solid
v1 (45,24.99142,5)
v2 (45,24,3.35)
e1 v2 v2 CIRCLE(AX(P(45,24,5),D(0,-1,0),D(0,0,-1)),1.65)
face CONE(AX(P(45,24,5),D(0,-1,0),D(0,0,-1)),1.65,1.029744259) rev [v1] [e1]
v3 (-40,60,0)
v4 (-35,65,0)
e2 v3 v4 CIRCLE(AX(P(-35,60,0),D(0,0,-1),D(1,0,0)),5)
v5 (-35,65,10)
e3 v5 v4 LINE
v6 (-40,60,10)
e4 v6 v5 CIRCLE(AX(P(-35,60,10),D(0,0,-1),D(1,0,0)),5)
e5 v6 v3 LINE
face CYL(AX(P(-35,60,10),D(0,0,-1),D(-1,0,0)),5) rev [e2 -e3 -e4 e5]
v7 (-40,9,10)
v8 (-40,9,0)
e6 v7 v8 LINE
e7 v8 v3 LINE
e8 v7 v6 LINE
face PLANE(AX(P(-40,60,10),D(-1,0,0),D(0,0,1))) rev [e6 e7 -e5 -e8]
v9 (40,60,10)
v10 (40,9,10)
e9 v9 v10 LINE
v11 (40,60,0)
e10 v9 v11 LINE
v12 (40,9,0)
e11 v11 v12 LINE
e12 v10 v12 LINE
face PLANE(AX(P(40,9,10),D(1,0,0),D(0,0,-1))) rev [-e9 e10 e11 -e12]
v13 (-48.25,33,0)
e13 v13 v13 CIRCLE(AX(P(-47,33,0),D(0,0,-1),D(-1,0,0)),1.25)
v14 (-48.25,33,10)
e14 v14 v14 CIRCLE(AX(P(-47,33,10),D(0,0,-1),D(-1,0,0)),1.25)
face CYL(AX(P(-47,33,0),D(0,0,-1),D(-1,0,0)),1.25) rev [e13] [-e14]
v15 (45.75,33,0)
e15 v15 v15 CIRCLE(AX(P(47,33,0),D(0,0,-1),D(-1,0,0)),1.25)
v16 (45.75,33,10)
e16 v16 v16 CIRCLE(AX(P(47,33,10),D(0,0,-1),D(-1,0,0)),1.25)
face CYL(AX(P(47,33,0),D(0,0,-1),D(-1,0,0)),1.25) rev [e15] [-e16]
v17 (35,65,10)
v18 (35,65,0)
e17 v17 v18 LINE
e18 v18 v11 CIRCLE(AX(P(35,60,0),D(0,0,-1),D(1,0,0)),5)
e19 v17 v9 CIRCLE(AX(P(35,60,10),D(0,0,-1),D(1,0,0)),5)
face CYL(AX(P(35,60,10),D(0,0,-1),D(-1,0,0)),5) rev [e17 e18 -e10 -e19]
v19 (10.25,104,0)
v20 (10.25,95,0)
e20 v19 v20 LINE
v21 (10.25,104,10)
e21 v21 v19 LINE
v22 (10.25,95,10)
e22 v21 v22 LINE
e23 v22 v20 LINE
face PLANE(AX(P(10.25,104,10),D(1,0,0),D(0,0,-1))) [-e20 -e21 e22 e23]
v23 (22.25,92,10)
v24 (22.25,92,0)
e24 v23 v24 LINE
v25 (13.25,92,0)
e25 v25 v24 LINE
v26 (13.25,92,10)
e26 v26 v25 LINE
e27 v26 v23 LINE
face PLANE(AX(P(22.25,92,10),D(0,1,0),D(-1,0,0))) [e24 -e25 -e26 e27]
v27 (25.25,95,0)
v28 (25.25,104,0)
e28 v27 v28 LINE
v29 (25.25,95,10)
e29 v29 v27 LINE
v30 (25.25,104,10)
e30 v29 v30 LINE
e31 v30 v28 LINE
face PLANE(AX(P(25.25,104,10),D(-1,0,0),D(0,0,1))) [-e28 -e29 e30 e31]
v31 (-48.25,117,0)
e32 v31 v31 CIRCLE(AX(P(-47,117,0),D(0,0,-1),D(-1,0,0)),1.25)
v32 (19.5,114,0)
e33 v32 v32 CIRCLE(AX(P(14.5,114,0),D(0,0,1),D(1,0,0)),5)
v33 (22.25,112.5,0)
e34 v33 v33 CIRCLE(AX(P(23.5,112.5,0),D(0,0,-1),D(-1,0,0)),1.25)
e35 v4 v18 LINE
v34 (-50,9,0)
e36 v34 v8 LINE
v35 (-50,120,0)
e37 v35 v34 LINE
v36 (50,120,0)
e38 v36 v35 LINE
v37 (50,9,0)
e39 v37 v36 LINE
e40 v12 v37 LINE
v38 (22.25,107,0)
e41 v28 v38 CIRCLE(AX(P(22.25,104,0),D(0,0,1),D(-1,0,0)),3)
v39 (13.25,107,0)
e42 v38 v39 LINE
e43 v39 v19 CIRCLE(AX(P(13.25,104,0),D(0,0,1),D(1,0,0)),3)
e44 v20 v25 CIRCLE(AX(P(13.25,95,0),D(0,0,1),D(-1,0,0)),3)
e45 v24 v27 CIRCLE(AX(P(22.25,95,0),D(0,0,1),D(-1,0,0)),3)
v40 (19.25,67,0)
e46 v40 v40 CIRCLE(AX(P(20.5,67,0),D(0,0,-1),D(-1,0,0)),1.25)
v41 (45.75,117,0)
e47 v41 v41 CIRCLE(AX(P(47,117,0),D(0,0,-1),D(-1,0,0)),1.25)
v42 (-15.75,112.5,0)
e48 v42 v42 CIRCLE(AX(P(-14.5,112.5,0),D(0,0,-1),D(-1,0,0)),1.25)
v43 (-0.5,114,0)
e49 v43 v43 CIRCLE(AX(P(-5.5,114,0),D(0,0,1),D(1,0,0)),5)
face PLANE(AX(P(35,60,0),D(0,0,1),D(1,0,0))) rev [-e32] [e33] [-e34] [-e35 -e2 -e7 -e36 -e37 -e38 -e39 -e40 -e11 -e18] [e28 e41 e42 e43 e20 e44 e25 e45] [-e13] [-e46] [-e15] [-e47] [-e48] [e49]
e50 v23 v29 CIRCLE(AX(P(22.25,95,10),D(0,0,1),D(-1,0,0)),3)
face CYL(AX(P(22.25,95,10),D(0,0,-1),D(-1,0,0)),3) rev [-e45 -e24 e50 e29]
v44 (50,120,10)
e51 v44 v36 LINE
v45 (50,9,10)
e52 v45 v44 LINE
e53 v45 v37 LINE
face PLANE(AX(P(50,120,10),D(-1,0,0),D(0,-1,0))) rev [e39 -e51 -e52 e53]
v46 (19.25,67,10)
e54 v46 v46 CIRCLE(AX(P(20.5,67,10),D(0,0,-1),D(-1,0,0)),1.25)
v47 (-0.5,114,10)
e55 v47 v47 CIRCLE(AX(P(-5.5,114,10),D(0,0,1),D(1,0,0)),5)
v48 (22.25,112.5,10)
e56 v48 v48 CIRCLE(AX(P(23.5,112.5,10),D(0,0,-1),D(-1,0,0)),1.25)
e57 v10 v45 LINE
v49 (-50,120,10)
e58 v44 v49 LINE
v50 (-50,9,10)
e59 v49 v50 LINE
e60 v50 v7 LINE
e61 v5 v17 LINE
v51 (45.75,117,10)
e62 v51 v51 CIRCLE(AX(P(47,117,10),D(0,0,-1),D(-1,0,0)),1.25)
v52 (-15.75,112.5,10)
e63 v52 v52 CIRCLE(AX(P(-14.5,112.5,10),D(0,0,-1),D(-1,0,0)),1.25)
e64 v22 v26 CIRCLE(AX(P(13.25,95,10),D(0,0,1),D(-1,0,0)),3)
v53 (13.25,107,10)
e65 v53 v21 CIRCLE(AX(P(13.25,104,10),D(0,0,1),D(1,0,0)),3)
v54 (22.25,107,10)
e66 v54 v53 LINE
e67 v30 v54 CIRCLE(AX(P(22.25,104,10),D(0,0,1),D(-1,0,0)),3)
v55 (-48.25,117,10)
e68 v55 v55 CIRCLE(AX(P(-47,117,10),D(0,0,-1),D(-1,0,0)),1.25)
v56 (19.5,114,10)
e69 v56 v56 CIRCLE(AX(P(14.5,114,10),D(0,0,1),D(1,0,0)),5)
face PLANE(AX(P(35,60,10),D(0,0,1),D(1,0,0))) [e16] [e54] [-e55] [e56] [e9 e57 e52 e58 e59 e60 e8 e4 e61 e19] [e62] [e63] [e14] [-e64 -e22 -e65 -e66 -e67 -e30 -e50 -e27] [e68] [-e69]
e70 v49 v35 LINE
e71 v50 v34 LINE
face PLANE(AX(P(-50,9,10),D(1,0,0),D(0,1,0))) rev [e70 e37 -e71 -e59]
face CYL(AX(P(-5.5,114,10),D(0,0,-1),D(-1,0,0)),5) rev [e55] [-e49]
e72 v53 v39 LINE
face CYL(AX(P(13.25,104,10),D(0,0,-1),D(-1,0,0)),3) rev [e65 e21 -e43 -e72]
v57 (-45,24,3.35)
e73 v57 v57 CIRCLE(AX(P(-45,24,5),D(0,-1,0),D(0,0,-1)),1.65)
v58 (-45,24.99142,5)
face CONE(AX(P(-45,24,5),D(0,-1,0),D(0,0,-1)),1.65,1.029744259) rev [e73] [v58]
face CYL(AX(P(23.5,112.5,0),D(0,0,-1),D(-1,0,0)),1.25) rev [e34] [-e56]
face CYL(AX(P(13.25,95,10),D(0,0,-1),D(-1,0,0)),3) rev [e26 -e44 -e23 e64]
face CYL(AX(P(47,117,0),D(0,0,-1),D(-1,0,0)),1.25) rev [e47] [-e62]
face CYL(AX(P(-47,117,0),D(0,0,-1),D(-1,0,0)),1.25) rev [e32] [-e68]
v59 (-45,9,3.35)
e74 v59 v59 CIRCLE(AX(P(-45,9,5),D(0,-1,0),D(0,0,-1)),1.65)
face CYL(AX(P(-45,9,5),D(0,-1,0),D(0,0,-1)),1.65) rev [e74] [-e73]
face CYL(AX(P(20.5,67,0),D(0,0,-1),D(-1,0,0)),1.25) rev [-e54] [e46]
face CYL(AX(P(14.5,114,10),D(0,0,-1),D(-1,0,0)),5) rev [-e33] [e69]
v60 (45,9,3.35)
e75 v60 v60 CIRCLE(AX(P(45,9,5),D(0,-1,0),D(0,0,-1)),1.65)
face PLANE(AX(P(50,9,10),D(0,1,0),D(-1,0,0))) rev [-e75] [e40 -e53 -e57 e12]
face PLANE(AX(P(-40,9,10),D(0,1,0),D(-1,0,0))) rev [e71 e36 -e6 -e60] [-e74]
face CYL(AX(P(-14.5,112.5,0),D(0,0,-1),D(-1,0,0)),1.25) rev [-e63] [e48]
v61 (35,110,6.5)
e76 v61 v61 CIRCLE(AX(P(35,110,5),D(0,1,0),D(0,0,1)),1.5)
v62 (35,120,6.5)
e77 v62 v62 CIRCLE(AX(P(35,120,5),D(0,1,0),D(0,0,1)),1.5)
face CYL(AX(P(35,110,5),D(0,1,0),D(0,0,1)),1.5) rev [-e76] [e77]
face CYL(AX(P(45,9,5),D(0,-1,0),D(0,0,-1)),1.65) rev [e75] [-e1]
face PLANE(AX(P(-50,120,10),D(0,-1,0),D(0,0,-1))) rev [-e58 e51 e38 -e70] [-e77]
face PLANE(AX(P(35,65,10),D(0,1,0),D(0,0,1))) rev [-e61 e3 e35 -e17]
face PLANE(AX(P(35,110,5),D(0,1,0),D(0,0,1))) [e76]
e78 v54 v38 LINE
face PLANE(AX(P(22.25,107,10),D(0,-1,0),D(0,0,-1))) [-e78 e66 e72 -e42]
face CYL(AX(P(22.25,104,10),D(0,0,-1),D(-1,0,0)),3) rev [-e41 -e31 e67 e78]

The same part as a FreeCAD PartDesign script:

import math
import FreeCAD as App
import Part
import Sketcher
from FreeCAD import Vector
Q = App.Units.Quantity

doc = App.newDocument("Part")
body = doc.addObject("PartDesign::Body", "Body")

sketch1 = body.newObject("Sketcher::SketchObject", "Sketch")
sketch1.AttachmentSupport = (doc.getObject("XY_Plane"), [""])
sketch1.MapMode = "FlatFace"
sketch1.addGeometry([
    Part.LineSegment(Vector(-50, 9, 0), Vector(-40, 9, 0)),
    Part.LineSegment(Vector(-40, 9, 0), Vector(-40, 60, 0)),
    Part.ArcOfCircle(Part.Circle(Vector(-35, 60, 0), Vector(0, 0, 1), 5), math.radians(90), math.radians(180)),
    Part.LineSegment(Vector(-35, 65, 0), Vector(35, 65, 0)),
    Part.ArcOfCircle(Part.Circle(Vector(35, 60, 0), Vector(0, 0, 1), 5), math.radians(0), math.radians(90)),
    Part.LineSegment(Vector(40, 60, 0), Vector(40, 9, 0)),
    Part.LineSegment(Vector(40, 9, 0), Vector(50, 9, 0)),
    Part.LineSegment(Vector(50, 9, 0), Vector(50, 120, 0)),
    Part.LineSegment(Vector(50, 120, 0), Vector(-50, 120, 0)),
    Part.LineSegment(Vector(-50, 120, 0), Vector(-50, 9, 0)),
], False)
sketch1.addConstraint([
    Sketcher.Constraint("Coincident", 0, 2, 1, 1),
    Sketcher.Constraint("Tangent", 1, 2, 2, 2),
    Sketcher.Constraint("Tangent", 2, 1, 3, 1),
    Sketcher.Constraint("Tangent", 3, 2, 4, 2),
    Sketcher.Constraint("Tangent", 4, 1, 5, 1),
    Sketcher.Constraint("Coincident", 5, 2, 6, 1),
    Sketcher.Constraint("Coincident", 6, 2, 7, 1),
    Sketcher.Constraint("Coincident", 7, 2, 8, 1),
    Sketcher.Constraint("Coincident", 8, 2, 9, 1),
    Sketcher.Constraint("Coincident", 9, 2, 0, 1),
    Sketcher.Constraint("Horizontal", 0),
    Sketcher.Constraint("Vertical", 1),
    Sketcher.Constraint("Horizontal", 3),
    Sketcher.Constraint("Vertical", 5),
    Sketcher.Constraint("Horizontal", 6),
    Sketcher.Constraint("Vertical", 7),
    Sketcher.Constraint("Horizontal", 8),
    Sketcher.Constraint("Vertical", 9),
    Sketcher.Constraint("Equal", 2, 4),
    Sketcher.Constraint("Symmetric", 0, 2, 5, 2, -2),
    Sketcher.Constraint("Equal", 0, 6),
    Sketcher.Constraint("Radius", 2, Q("5 mm")),
    Sketcher.Constraint("DistanceX", 0, 1, 0, 2, Q("10 mm")),
    Sketcher.Constraint("DistanceX", 3, 1, 3, 2, Q("70 mm")),
    Sketcher.Constraint("DistanceY", 1, 1, 1, 2, Q("51 mm")),
    Sketcher.Constraint("DistanceY", 7, 1, 7, 2, Q("111 mm")),
    Sketcher.Constraint("DistanceY", -1, 1, 2, 3, Q("60 mm")),
])
pad1 = body.newObject("PartDesign::Pad", "Pad")
pad1.Profile = sketch1
pad1.Length = 10

sketch2 = body.newObject("Sketcher::SketchObject", "Sketch001")
sketch2.AttachmentSupport = (doc.getObject("XZ_Plane"), [""])
sketch2.MapMode = "FlatFace"
sketch2.AttachmentOffset = App.Placement(Vector(0, 0, -9), App.Rotation())
sketch2.addGeometry([
    Part.Circle(Vector(-45, 5, 0), Vector(0, 0, 1), 1.6),
    Part.Circle(Vector(45, 5, 0), Vector(0, 0, 1), 1.6),
], False)
sketch2.addConstraint([
    Sketcher.Constraint("Equal", 0, 1),
    Sketcher.Constraint("Symmetric", 0, 3, 1, 3, -2),
    Sketcher.Constraint("Diameter", 0, Q("3.3 mm")),
    Sketcher.Constraint("DistanceX", 0, 3, -1, 1, Q("45 mm")),
    Sketcher.Constraint("DistanceY", -1, 1, 0, 3, Q("5 mm")),
])
doc.recompute()
hole = body.newObject("PartDesign::Hole", "Hole")
hole.Profile = sketch2
hole.ThreadType = "None"
hole.Diameter = 3.3
hole.DepthType = "Dimension"
hole.Depth = 15
hole.DrillPoint = "Angled"
hole.DrillPointAngle = 118

sketch3 = body.newObject("Sketcher::SketchObject", "Sketch002")
sketch3.AttachmentSupport = (doc.getObject("XY_Plane"), [""])
sketch3.MapMode = "FlatFace"
sketch3.addGeometry([
    Part.Circle(Vector(14.5, 114, 0), Vector(0, 0, 1), 5),
    Part.Circle(Vector(-5.5, 114, 0), Vector(0, 0, 1), 5),
    Part.LineSegment(Vector(22.2, 107, 0), Vector(13.2, 107, 0)),
    Part.ArcOfCircle(Part.Circle(Vector(13.2, 104, 0), Vector(0, 0, 1), 3), math.radians(90), math.radians(180)),
    Part.LineSegment(Vector(10.2, 104, 0), Vector(10.2, 95, 0)),
    Part.ArcOfCircle(Part.Circle(Vector(13.2, 95, 0), Vector(0, 0, 1), 3), math.radians(180), math.radians(270)),
    Part.LineSegment(Vector(13.2, 92, 0), Vector(22.2, 92, 0)),
    Part.ArcOfCircle(Part.Circle(Vector(22.3, 95, 0), Vector(0, 0, 1), 3), math.radians(-90), math.radians(0)),
    Part.LineSegment(Vector(25.2, 95, 0), Vector(25.2, 104, 0)),
    Part.ArcOfCircle(Part.Circle(Vector(22.3, 104, 0), Vector(0, 0, 1), 3), math.radians(0), math.radians(90)),
], False)
sketch3.addConstraint([
    Sketcher.Constraint("Tangent", 2, 2, 3, 1),
    Sketcher.Constraint("Tangent", 3, 2, 4, 1),
    Sketcher.Constraint("Tangent", 4, 2, 5, 1),
    Sketcher.Constraint("Tangent", 5, 2, 6, 1),
    Sketcher.Constraint("Tangent", 6, 2, 7, 1),
    Sketcher.Constraint("Tangent", 7, 2, 8, 1),
    Sketcher.Constraint("Tangent", 8, 2, 9, 1),
    Sketcher.Constraint("Tangent", 9, 2, 2, 1),
    Sketcher.Constraint("Horizontal", 2),
    Sketcher.Constraint("Vertical", 4),
    Sketcher.Constraint("Horizontal", 6),
    Sketcher.Constraint("Vertical", 8),
    Sketcher.Constraint("Equal", 0, 1),
    Sketcher.Constraint("Equal", 3, 5),
    Sketcher.Constraint("Equal", 5, 7),
    Sketcher.Constraint("Equal", 7, 9),
    Sketcher.Constraint("Horizontal", 0, 3, 1, 3),
    Sketcher.Constraint("Equal", 6, 4),
    Sketcher.Constraint("Diameter", 0, Q("10 mm")),
    Sketcher.Constraint("Radius", 3, Q("3 mm")),
    Sketcher.Constraint("DistanceX", 2, 2, 2, 1, Q("9 mm")),
    Sketcher.Constraint("DistanceY", -1, 1, 0, 3, Q("114 mm")),
    Sketcher.Constraint("DistanceY", -1, 1, 3, 3, Q("104 mm")),
    Sketcher.Constraint("DistanceX", 1, 3, 0, 3, Q("20 mm")),
    Sketcher.Constraint("DistanceX", -1, 1, 0, 3, Q("14.5 mm")),
    Sketcher.Constraint("DistanceX", -1, 1, 3, 3, Q("13.25 mm")),
])
pocket1 = body.newObject("PartDesign::Pocket", "Pocket")
pocket1.Profile = sketch3
pocket1.Type = "ThroughAll"
pocket1.Reversed = True

sketch4 = body.newObject("Sketcher::SketchObject", "Sketch003")
sketch4.AttachmentSupport = (doc.getObject("XY_Plane"), [""])
sketch4.MapMode = "FlatFace"
sketch4.addGeometry([
    Part.Circle(Vector(23.5, 112.5, 0), Vector(0, 0, 1), 1.2),
    Part.Circle(Vector(-14.5, 112.5, 0), Vector(0, 0, 1), 1.2),
    Part.Circle(Vector(20.5, 67, 0), Vector(0, 0, 1), 1.2),
    Part.Circle(Vector(47, 117, 0), Vector(0, 0, 1), 1.2),
    Part.Circle(Vector(-47, 117, 0), Vector(0, 0, 1), 1.2),
    Part.Circle(Vector(-47, 33, 0), Vector(0, 0, 1), 1.2),
    Part.Circle(Vector(47, 33, 0), Vector(0, 0, 1), 1.2),
], False)
sketch4.addConstraint([
    Sketcher.Constraint("Equal", 0, 1),
    Sketcher.Constraint("Equal", 1, 2),
    Sketcher.Constraint("Equal", 2, 3),
    Sketcher.Constraint("Equal", 3, 4),
    Sketcher.Constraint("Equal", 4, 5),
    Sketcher.Constraint("Equal", 5, 6),
    Sketcher.Constraint("Symmetric", 3, 3, 4, 3, -2),
    Sketcher.Constraint("Symmetric", 5, 3, 6, 3, -2),
    Sketcher.Constraint("Horizontal", 0, 3, 1, 3),
    Sketcher.Constraint("Vertical", 4, 3, 5, 3),
    Sketcher.Constraint("Diameter", 0, Q("2.5 mm")),
    Sketcher.Constraint("DistanceY", -1, 1, 2, 3, Q("67 mm")),
    Sketcher.Constraint("DistanceX", -1, 1, 3, 3, Q("47 mm")),
    Sketcher.Constraint("DistanceY", -1, 1, 3, 3, Q("117 mm")),
    Sketcher.Constraint("DistanceY", -1, 1, 5, 3, Q("33 mm")),
    Sketcher.Constraint("DistanceX", 1, 3, 0, 3, Q("38 mm")),
    Sketcher.Constraint("DistanceX", 2, 3, 0, 3, Q("3 mm")),
    Sketcher.Constraint("DistanceX", -1, 1, 0, 3, Q("23.5 mm")),
    Sketcher.Constraint("DistanceY", -1, 1, 0, 3, Q("112.5 mm")),
])
doc.recompute()
hole2 = body.newObject("PartDesign::Hole", "Hole001")
hole2.Profile = sketch4
hole2.ThreadType = "None"
hole2.Diameter = 2.5
hole2.DepthType = "ThroughAll"
hole2.Reversed = True

sketch5 = body.newObject("Sketcher::SketchObject", "Sketch004")
sketch5.AttachmentSupport = (doc.getObject("XZ_Plane"), [""])
sketch5.MapMode = "FlatFace"
sketch5.AttachmentOffset = App.Placement(Vector(0, 0, -120), App.Rotation())
sketch5.addGeometry(Part.Circle(Vector(35, 5, 0), Vector(0, 0, 1), 1.5), False)
sketch5.addConstraint([
    Sketcher.Constraint("Diameter", 0, Q("3 mm")),
    Sketcher.Constraint("DistanceX", -1, 1, 0, 3, Q("35 mm")),
    Sketcher.Constraint("DistanceY", -1, 1, 0, 3, Q("5 mm")),
])
pocket2 = body.newObject("PartDesign::Pocket", "Pocket001")
pocket2.Profile = sketch5
pocket2.Length = 10
pocket2.Reversed = True

doc.recompute()
